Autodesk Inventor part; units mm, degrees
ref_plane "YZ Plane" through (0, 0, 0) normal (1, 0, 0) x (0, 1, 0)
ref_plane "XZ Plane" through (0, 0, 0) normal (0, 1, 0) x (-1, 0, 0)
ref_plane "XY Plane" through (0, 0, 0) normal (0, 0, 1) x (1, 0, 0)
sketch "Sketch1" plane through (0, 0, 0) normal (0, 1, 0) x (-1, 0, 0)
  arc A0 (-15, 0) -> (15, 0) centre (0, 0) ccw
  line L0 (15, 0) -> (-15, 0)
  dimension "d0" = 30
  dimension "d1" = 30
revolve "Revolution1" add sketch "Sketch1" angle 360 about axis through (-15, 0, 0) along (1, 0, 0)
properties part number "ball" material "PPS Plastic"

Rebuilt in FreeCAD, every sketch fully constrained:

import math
import FreeCAD as App
import Part
import Sketcher
Q = App.Units.Quantity

doc = App.newDocument("Part")
body = doc.addObject("PartDesign::Body", "Body")

sketch1 = doc.addObject("Sketcher::SketchObject", "Sketch")
body.addObject(sketch1)
sketch1.AttachmentSupport = (doc.XZ_Plane, [""])
sketch1.MapMode = "FlatFace"
sketch1.addGeometry([
    Part.LineSegment(App.Vector(-15, 0, 0), App.Vector(15, 0, 0)),
    Part.ArcOfCircle(Part.Circle(App.Vector(0, 0, 0), App.Vector(0, 0, 1), 15), math.radians(180), math.radians(360)),
], False)
sketch1.addConstraint([
    Sketcher.Constraint("Coincident", 0, 1, 1, 1),
    Sketcher.Constraint("Coincident", 1, 2, 0, 2),
    Sketcher.Constraint("Horizontal", 0),
    Sketcher.Constraint("Coincident", 1, 3, -1, 1),
    Sketcher.Constraint("PointOnObject", 0, 1, -1),
    Sketcher.Constraint("Radius", 1, Q("15 mm")),
])
revolution = doc.addObject("PartDesign::Revolution", "Revolution")
body.addObject(revolution)
revolution.Profile = sketch1
revolution.ReferenceAxis = (sketch1, ["H_Axis"])
revolution.Angle = 360

doc.recompute()
